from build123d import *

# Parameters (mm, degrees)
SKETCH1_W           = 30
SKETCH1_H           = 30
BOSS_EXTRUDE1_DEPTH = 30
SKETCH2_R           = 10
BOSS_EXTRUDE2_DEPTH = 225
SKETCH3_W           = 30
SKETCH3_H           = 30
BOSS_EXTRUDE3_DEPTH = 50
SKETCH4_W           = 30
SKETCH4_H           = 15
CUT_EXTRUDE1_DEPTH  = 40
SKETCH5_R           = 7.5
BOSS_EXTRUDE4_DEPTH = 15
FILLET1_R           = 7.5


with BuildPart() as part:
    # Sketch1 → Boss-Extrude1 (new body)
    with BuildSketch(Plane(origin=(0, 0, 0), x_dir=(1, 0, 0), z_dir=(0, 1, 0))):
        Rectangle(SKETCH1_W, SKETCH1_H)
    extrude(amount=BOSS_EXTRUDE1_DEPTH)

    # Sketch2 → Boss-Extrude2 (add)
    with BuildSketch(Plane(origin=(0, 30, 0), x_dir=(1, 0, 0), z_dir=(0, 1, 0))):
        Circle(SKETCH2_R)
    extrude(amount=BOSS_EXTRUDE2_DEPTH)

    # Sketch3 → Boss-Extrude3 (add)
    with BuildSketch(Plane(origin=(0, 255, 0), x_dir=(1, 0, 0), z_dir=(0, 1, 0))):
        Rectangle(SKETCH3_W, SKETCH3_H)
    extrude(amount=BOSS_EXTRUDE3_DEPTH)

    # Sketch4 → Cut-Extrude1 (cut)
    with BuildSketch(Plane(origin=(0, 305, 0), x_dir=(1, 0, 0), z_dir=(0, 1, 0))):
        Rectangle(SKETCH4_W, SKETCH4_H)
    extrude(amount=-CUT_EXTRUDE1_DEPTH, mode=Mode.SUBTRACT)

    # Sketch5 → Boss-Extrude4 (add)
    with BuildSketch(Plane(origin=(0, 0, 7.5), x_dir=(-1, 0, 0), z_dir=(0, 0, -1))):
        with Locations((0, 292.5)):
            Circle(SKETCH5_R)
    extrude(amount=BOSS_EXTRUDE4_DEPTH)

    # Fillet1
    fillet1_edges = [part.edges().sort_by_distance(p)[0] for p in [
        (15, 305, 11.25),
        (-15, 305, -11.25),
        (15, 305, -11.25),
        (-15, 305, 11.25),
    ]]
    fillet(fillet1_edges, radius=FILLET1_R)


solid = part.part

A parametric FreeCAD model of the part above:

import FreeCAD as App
import Part
import Sketcher


def edges_at(feature, points):
    """Names of the edges that pass closest to the given points."""
    edges = feature.Shape.Edges
    near = lambda p: min(range(len(edges)), key=lambda i: edges[i].distToShape(Part.Vertex(*p))[0])
    return sorted({f"Edge{near(p) + 1}" for p in points})


def add_polygon(sketch, points):
    """Adds a closed chain of lines whose ends are joined by coincident constraints."""
    first, n = sketch.GeometryCount, len(points)
    for a, b in zip(points, points[1:] + points[:1]):
        sketch.addGeometry(Part.LineSegment(App.Vector(*a, 0), App.Vector(*b, 0)), False)
    for i in range(n):
        sketch.addConstraint(Sketcher.Constraint("Coincident", first + i, 2, first + (i + 1) % n, 1))

doc = App.newDocument("Part")
params = doc.addObject("Spreadsheet::Sheet", "Params")
for row, (alias, value) in enumerate([
    ("sketch1_width", "30 mm"),
    ("pad1_length", "30 mm"),
    ("sketch2_diameter", "20 mm"),
    ("pad2_length", "225 mm"),
    ("sketch3_width", "30 mm"),
    ("pad3_length", "50 mm"),
    ("sketch4_width", "30 mm"),
    ("sketch4_height", "15 mm"),
    ("pocket1_length", "40 mm"),
    ("sketch5_diameter", "15 mm"),
    ("pad4_length", "15 mm"),
    ("fillet_radius", "7.5 mm"),
], start=1):
    params.set(f"A{row}", alias)
    params.set(f"B{row}", "=" + value)
    params.setAlias(f"B{row}", alias)

body = doc.addObject("PartDesign::Body", "Body")

# Sketch on XZ plane
sketch1 = doc.addObject("Sketcher::SketchObject", "Sketch")
body.addObject(sketch1)
sketch1.AttachmentSupport = (doc.XZ_Plane, [""])
sketch1.MapMode = "FlatFace"
add_polygon(sketch1, [(-15, -15), (-15, 15), (15, 15), (15, -15)])  # lines 0-3
sketch1.addConstraint(Sketcher.Constraint("Vertical", 0))
sketch1.addConstraint(Sketcher.Constraint("Horizontal", 1))
sketch1.addConstraint(Sketcher.Constraint("Vertical", 2))
sketch1.addConstraint(Sketcher.Constraint("Horizontal", 3))
sketch1.addConstraint(Sketcher.Constraint("Symmetric", 0, 2, 2, 2, -1, 1))
sketch1.addConstraint(Sketcher.Constraint("Equal", 3, 0))
sketch1.addConstraint(Sketcher.Constraint("DistanceX", 1, 1, 1, 2, 30.0))
sketch1.setExpression("Constraints[10]", "Params.sketch1_width")
pad1 = doc.addObject("PartDesign::Pad", "Pad")
body.addObject(pad1)
pad1.Profile = sketch1
pad1.setExpression("Length", "Params.pad1_length")
pad1.Reversed = True

# Sketch on XZ plane
sketch2 = doc.addObject("Sketcher::SketchObject", "Sketch001")
body.addObject(sketch2)
sketch2.AttachmentSupport = (doc.XZ_Plane, [""])
sketch2.MapMode = "FlatFace"
sketch2.AttachmentOffset = App.Placement(App.Vector(0, 0, -30), App.Rotation())
sketch2.addGeometry(Part.Circle(App.Vector(0, 0, 0), App.Vector(0, 0, 1), 10), False)
sketch2.addConstraint(Sketcher.Constraint("Coincident", 0, 3, -1, 1))
sketch2.addConstraint(Sketcher.Constraint("Diameter", 0, 20.0))
sketch2.setExpression("Constraints[1]", "Params.sketch2_diameter")
pad2 = doc.addObject("PartDesign::Pad", "Pad001")
body.addObject(pad2)
pad2.Profile = sketch2
pad2.setExpression("Length", "Params.pad2_length")
pad2.Reversed = True

# Sketch on XZ plane
sketch3 = doc.addObject("Sketcher::SketchObject", "Sketch002")
body.addObject(sketch3)
sketch3.AttachmentSupport = (doc.XZ_Plane, [""])
sketch3.MapMode = "FlatFace"
sketch3.AttachmentOffset = App.Placement(App.Vector(0, 0, -255), App.Rotation())
add_polygon(sketch3, [(-15, -15), (-15, 15), (15, 15), (15, -15)])  # lines 0-3
sketch3.addConstraint(Sketcher.Constraint("Vertical", 0))
sketch3.addConstraint(Sketcher.Constraint("Horizontal", 1))
sketch3.addConstraint(Sketcher.Constraint("Vertical", 2))
sketch3.addConstraint(Sketcher.Constraint("Horizontal", 3))
sketch3.addConstraint(Sketcher.Constraint("Symmetric", 0, 2, 2, 2, -1, 1))
sketch3.addConstraint(Sketcher.Constraint("Equal", 3, 0))
sketch3.addConstraint(Sketcher.Constraint("DistanceX", 1, 1, 1, 2, 30.0))
sketch3.setExpression("Constraints[10]", "Params.sketch3_width")
pad3 = doc.addObject("PartDesign::Pad", "Pad002")
body.addObject(pad3)
pad3.Profile = sketch3
pad3.setExpression("Length", "Params.pad3_length")
pad3.Reversed = True

# Sketch on XZ plane
sketch4 = doc.addObject("Sketcher::SketchObject", "Sketch003")
body.addObject(sketch4)
sketch4.AttachmentSupport = (doc.XZ_Plane, [""])
sketch4.MapMode = "FlatFace"
sketch4.AttachmentOffset = App.Placement(App.Vector(0, 0, -305), App.Rotation())
add_polygon(sketch4, [(-15, -8), (-15, 8), (15, 8), (15, -8)])  # lines 0-3
sketch4.addConstraint(Sketcher.Constraint("Vertical", 0))
sketch4.addConstraint(Sketcher.Constraint("Horizontal", 1))
sketch4.addConstraint(Sketcher.Constraint("Vertical", 2))
sketch4.addConstraint(Sketcher.Constraint("Horizontal", 3))
sketch4.addConstraint(Sketcher.Constraint("Symmetric", 0, 2, 2, 2, -1, 1))
sketch4.addConstraint(Sketcher.Constraint("DistanceX", 1, 1, 1, 2, 30.0))
sketch4.addConstraint(Sketcher.Constraint("DistanceY", 0, 1, 0, 2, 15.0))
sketch4.setExpression("Constraints[9]", "Params.sketch4_width")
sketch4.setExpression("Constraints[10]", "Params.sketch4_height")
pocket1 = doc.addObject("PartDesign::Pocket", "Pocket")
body.addObject(pocket1)
pocket1.Profile = sketch4
pocket1.setExpression("Length", "Params.pocket1_length")
pocket1.Reversed = True

# Sketch on XY plane
sketch5 = doc.addObject("Sketcher::SketchObject", "Sketch004")
body.addObject(sketch5)
sketch5.AttachmentSupport = (doc.XY_Plane, [""])
sketch5.MapMode = "FlatFace"
sketch5.AttachmentOffset = App.Placement(App.Vector(0, 0, 7.5), App.Rotation())
sketch5.addGeometry(Part.Circle(App.Vector(0, 292, 0), App.Vector(0, 0, 1), 8), False)
sketch5.addConstraint(Sketcher.Constraint("PointOnObject", 0, 3, -2))
sketch5.addConstraint(Sketcher.Constraint("Diameter", 0, 15.0))
sketch5.addConstraint(Sketcher.Constraint("DistanceY", -1, 1, 0, 3, 292.5))
sketch5.setExpression("Constraints[1]", "Params.sketch5_diameter")
pad4 = doc.addObject("PartDesign::Pad", "Pad003")
body.addObject(pad4)
pad4.Profile = sketch5
pad4.setExpression("Length", "Params.pad4_length")
pad4.Reversed = True
doc.recompute()

fillet = doc.addObject("PartDesign::Fillet", "Fillet")
body.addObject(fillet)
fillet.Base = (pad4, edges_at(pad4, [
    (15, 305, 11.25),
    (-15, 305, -11.25),
    (15, 305, -11.25),
    (-15, 305, 11.25),
]))
fillet.setExpression("Radius", "Params.fillet_radius")

doc.recompute()
